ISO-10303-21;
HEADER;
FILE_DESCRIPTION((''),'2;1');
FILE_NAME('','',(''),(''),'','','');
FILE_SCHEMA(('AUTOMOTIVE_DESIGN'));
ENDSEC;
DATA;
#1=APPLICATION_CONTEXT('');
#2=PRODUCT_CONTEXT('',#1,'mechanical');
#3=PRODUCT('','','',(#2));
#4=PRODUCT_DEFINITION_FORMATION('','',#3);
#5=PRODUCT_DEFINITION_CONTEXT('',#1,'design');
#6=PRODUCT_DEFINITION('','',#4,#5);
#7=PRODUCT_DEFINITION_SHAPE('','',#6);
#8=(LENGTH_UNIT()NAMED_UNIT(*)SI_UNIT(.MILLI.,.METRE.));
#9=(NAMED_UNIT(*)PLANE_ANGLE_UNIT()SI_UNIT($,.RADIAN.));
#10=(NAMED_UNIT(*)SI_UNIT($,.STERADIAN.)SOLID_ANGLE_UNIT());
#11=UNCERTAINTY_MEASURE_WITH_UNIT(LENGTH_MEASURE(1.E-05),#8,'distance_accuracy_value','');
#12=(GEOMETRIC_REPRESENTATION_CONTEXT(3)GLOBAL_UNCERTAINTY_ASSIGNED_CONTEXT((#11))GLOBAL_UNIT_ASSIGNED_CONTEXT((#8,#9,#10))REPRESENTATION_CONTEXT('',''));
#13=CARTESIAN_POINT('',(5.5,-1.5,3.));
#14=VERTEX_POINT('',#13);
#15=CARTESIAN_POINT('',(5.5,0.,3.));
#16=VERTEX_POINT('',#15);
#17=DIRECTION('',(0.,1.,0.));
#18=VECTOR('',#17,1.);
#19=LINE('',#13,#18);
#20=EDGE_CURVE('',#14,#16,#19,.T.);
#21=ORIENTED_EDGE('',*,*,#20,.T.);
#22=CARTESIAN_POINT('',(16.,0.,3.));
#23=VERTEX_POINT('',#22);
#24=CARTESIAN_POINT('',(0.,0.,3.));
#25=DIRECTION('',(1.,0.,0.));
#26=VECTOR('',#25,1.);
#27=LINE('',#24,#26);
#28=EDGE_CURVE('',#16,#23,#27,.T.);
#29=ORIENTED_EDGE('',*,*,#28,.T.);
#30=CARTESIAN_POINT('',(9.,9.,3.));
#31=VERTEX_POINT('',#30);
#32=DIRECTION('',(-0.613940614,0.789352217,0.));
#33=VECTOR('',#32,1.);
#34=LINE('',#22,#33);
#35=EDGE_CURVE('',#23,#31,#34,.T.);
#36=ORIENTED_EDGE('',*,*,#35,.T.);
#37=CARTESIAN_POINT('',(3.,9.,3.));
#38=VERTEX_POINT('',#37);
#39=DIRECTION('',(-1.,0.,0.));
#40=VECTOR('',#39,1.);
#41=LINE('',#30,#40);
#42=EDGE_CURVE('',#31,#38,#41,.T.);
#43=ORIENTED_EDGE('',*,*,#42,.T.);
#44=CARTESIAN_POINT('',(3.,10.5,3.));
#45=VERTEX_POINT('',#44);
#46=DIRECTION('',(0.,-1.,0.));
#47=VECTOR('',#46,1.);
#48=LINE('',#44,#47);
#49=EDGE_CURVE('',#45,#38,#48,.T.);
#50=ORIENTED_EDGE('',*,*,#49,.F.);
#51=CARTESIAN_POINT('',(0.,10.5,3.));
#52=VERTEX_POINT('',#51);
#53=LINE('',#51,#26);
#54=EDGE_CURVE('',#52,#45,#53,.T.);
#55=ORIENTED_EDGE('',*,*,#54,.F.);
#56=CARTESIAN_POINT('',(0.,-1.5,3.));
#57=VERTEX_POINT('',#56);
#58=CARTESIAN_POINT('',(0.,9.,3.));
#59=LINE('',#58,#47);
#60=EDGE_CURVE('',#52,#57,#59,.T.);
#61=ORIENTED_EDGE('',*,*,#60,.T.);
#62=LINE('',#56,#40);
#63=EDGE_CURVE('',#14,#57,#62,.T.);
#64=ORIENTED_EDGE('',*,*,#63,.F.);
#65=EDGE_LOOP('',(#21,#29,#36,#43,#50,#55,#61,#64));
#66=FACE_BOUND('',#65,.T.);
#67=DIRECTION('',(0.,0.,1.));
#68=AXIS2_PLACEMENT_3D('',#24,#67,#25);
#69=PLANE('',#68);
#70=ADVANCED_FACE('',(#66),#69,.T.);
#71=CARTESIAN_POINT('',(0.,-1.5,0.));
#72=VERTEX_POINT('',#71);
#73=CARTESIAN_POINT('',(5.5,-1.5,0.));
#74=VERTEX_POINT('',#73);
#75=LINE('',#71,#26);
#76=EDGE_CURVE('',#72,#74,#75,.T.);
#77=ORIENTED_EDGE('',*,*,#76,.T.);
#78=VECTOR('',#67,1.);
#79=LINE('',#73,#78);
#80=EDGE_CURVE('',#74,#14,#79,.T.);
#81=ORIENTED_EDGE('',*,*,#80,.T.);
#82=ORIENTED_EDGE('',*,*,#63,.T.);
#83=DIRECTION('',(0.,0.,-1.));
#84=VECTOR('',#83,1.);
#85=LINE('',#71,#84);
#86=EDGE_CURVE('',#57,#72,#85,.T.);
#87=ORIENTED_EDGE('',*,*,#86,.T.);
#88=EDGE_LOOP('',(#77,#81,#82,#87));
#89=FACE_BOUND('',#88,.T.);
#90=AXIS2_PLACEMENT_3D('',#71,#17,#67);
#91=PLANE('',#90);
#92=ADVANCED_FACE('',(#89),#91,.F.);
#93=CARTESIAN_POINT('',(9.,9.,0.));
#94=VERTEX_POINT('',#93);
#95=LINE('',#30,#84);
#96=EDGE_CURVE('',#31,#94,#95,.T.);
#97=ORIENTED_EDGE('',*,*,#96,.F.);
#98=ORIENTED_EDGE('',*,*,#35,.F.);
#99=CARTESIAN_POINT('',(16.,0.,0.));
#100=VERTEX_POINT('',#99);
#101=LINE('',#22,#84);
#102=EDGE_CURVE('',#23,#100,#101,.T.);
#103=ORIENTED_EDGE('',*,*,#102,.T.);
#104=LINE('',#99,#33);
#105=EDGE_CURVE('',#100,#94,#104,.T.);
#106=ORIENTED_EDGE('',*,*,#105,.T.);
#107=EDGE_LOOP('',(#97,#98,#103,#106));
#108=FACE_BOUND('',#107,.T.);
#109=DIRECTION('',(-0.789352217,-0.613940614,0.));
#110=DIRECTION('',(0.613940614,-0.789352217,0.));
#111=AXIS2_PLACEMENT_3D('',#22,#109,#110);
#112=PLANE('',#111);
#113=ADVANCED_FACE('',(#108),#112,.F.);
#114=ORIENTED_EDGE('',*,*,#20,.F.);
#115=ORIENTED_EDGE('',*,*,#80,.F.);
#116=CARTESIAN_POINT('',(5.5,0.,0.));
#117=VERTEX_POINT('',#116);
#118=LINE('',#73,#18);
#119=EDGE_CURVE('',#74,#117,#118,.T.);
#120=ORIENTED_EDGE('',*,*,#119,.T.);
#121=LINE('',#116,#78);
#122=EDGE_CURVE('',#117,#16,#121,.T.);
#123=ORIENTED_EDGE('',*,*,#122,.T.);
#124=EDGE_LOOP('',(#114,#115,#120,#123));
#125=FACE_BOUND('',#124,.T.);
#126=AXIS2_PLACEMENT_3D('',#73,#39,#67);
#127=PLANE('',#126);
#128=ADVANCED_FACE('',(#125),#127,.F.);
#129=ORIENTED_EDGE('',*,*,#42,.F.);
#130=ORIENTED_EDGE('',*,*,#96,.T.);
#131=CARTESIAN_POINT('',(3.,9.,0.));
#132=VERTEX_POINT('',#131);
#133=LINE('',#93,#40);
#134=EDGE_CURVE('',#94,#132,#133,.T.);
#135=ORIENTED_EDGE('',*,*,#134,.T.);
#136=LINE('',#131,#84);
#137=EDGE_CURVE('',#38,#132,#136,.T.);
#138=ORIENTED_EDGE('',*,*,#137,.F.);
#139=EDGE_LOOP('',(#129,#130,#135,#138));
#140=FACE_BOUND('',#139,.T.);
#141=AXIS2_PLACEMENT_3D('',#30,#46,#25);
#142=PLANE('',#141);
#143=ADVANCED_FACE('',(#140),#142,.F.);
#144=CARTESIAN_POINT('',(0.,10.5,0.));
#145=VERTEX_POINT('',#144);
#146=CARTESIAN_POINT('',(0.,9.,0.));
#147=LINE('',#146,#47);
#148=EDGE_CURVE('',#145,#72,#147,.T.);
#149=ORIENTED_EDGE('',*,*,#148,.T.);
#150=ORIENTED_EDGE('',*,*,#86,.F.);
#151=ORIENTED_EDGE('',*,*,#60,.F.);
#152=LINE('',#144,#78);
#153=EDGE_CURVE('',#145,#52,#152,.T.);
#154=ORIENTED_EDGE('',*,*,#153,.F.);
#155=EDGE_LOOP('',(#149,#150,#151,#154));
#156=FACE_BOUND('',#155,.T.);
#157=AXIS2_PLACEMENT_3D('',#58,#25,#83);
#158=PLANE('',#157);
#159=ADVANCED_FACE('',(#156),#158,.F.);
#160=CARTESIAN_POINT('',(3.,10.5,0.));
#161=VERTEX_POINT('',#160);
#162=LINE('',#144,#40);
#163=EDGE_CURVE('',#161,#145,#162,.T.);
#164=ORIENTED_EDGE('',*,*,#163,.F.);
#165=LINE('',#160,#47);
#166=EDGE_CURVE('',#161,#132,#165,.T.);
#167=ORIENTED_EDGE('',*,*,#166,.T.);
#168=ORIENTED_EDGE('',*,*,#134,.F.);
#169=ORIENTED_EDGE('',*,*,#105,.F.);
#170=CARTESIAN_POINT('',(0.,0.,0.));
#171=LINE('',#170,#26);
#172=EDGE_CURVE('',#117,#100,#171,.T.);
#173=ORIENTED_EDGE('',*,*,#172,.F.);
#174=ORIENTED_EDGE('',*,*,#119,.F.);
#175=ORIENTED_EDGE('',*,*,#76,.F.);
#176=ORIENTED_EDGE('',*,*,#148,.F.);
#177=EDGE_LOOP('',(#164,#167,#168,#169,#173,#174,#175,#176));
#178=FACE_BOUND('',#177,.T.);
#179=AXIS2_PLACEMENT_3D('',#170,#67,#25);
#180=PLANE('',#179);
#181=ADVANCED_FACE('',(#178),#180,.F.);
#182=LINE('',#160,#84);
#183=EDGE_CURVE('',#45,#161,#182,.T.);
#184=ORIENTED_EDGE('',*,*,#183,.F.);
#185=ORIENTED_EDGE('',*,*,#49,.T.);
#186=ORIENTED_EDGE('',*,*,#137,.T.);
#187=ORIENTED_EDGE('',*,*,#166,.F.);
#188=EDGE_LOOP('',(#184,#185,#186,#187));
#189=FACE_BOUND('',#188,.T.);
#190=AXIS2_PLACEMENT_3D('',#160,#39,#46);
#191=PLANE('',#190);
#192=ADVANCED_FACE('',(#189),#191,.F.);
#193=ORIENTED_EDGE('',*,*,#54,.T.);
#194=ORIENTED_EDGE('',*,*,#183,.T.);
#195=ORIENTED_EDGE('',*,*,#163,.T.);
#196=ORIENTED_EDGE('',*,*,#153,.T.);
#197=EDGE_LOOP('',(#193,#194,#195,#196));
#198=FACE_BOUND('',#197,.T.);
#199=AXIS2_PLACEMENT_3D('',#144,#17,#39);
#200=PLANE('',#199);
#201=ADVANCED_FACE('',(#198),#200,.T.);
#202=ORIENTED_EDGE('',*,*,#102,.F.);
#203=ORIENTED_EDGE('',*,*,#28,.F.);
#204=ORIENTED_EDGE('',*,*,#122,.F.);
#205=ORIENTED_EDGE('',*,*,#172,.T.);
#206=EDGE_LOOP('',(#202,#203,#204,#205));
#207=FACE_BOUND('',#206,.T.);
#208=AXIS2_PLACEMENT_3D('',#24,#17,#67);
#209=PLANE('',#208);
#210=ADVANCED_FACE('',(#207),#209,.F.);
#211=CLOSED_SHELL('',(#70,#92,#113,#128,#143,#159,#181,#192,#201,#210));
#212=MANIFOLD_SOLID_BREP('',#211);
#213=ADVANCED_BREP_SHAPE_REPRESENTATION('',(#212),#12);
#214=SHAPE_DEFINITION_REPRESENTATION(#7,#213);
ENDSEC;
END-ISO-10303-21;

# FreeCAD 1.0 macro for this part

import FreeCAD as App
import Part
import Sketcher
from FreeCAD import Vector


def add_polygon(sketch, points):
    """Adds a closed chain of lines whose ends are joined by coincident constraints."""
    first, n = sketch.GeometryCount, len(points)
    for a, b in zip(points, points[1:] + points[:1]):
        sketch.addGeometry(Part.LineSegment(App.Vector(*a, 0), App.Vector(*b, 0)), False)
    for i in range(n):
        sketch.addConstraint(Sketcher.Constraint("Coincident", first + i, 2, first + (i + 1) % n, 1))

doc = App.newDocument("Part")
body = doc.addObject("PartDesign::Body", "Body")

# Sketch on XY plane
sketch1 = doc.addObject("Sketcher::SketchObject", "Sketch")
body.addObject(sketch1)
sketch1.AttachmentSupport = (doc.XY_Plane, [""])
sketch1.MapMode = "FlatFace"
add_polygon(sketch1, [(0, 9), (0, 0), (16, 0), (9, 9)])  # lines 0-3
sketch1.addConstraint([
    Sketcher.Constraint("Vertical", 0),
    Sketcher.Constraint("Horizontal", 1),
    Sketcher.Constraint("Horizontal", 3),
    Sketcher.Constraint("Coincident", 0, 2, -1, 1),
    Sketcher.Constraint("Equal", 3, 0),
    Sketcher.Constraint("DistanceX", 1, 1, 1, 2, 16.0),
    Sketcher.Constraint("DistanceX", 3, 2, 3, 1, 9.0),
])
pad1 = doc.addObject("PartDesign::Pad", "Pad")
body.addObject(pad1)
pad1.Profile = sketch1
pad1.Length = 3

# Sketch on XZ plane
sketch2 = doc.addObject("Sketcher::SketchObject", "Sketch001")
body.addObject(sketch2)
sketch2.AttachmentSupport = (doc.XZ_Plane, [""])
sketch2.MapMode = "FlatFace"
sketch2.AttachmentOffset = App.Placement(Vector(0, 0, -9), App.Rotation())
add_polygon(sketch2, [(0, 0), (0, 3), (3, 3), (3, 0)])  # lines 0-3
sketch2.addConstraint([
    Sketcher.Constraint("Vertical", 0),
    Sketcher.Constraint("Horizontal", 1),
    Sketcher.Constraint("Vertical", 2),
    Sketcher.Constraint("Horizontal", 3),
    Sketcher.Constraint("Coincident", 3, 2, -1, 1),
    Sketcher.Constraint("Equal", 3, 0),
    Sketcher.Constraint("DistanceX", 1, 1, 1, 2, 3.0),
])
pad2 = doc.addObject("PartDesign::Pad", "Pad001")
body.addObject(pad2)
pad2.Profile = sketch2
pad2.Length = 1.5
pad2.Reversed = True

# Sketch on XZ plane
sketch3 = doc.addObject("Sketcher::SketchObject", "Sketch002")
body.addObject(sketch3)
sketch3.AttachmentSupport = (doc.XZ_Plane, [""])
sketch3.MapMode = "FlatFace"
add_polygon(sketch3, [(0, 3), (0, 0), (5.5, 0), (5.5, 3)])  # lines 0-3
sketch3.addConstraint([
    Sketcher.Constraint("Vertical", 0),
    Sketcher.Constraint("Horizontal", 1),
    Sketcher.Constraint("Vertical", 2),
    Sketcher.Constraint("Horizontal", 3),
    Sketcher.Constraint("Coincident", 0, 2, -1, 1),
    Sketcher.Constraint("DistanceY", 0, 2, 0, 1, 3.0),
    Sketcher.Constraint("DistanceX", 1, 1, 1, 2, 5.5),
])
pad3 = doc.addObject("PartDesign::Pad", "Pad002")
body.addObject(pad3)
pad3.Profile = sketch3
pad3.Length = 1.5

doc.recompute()
